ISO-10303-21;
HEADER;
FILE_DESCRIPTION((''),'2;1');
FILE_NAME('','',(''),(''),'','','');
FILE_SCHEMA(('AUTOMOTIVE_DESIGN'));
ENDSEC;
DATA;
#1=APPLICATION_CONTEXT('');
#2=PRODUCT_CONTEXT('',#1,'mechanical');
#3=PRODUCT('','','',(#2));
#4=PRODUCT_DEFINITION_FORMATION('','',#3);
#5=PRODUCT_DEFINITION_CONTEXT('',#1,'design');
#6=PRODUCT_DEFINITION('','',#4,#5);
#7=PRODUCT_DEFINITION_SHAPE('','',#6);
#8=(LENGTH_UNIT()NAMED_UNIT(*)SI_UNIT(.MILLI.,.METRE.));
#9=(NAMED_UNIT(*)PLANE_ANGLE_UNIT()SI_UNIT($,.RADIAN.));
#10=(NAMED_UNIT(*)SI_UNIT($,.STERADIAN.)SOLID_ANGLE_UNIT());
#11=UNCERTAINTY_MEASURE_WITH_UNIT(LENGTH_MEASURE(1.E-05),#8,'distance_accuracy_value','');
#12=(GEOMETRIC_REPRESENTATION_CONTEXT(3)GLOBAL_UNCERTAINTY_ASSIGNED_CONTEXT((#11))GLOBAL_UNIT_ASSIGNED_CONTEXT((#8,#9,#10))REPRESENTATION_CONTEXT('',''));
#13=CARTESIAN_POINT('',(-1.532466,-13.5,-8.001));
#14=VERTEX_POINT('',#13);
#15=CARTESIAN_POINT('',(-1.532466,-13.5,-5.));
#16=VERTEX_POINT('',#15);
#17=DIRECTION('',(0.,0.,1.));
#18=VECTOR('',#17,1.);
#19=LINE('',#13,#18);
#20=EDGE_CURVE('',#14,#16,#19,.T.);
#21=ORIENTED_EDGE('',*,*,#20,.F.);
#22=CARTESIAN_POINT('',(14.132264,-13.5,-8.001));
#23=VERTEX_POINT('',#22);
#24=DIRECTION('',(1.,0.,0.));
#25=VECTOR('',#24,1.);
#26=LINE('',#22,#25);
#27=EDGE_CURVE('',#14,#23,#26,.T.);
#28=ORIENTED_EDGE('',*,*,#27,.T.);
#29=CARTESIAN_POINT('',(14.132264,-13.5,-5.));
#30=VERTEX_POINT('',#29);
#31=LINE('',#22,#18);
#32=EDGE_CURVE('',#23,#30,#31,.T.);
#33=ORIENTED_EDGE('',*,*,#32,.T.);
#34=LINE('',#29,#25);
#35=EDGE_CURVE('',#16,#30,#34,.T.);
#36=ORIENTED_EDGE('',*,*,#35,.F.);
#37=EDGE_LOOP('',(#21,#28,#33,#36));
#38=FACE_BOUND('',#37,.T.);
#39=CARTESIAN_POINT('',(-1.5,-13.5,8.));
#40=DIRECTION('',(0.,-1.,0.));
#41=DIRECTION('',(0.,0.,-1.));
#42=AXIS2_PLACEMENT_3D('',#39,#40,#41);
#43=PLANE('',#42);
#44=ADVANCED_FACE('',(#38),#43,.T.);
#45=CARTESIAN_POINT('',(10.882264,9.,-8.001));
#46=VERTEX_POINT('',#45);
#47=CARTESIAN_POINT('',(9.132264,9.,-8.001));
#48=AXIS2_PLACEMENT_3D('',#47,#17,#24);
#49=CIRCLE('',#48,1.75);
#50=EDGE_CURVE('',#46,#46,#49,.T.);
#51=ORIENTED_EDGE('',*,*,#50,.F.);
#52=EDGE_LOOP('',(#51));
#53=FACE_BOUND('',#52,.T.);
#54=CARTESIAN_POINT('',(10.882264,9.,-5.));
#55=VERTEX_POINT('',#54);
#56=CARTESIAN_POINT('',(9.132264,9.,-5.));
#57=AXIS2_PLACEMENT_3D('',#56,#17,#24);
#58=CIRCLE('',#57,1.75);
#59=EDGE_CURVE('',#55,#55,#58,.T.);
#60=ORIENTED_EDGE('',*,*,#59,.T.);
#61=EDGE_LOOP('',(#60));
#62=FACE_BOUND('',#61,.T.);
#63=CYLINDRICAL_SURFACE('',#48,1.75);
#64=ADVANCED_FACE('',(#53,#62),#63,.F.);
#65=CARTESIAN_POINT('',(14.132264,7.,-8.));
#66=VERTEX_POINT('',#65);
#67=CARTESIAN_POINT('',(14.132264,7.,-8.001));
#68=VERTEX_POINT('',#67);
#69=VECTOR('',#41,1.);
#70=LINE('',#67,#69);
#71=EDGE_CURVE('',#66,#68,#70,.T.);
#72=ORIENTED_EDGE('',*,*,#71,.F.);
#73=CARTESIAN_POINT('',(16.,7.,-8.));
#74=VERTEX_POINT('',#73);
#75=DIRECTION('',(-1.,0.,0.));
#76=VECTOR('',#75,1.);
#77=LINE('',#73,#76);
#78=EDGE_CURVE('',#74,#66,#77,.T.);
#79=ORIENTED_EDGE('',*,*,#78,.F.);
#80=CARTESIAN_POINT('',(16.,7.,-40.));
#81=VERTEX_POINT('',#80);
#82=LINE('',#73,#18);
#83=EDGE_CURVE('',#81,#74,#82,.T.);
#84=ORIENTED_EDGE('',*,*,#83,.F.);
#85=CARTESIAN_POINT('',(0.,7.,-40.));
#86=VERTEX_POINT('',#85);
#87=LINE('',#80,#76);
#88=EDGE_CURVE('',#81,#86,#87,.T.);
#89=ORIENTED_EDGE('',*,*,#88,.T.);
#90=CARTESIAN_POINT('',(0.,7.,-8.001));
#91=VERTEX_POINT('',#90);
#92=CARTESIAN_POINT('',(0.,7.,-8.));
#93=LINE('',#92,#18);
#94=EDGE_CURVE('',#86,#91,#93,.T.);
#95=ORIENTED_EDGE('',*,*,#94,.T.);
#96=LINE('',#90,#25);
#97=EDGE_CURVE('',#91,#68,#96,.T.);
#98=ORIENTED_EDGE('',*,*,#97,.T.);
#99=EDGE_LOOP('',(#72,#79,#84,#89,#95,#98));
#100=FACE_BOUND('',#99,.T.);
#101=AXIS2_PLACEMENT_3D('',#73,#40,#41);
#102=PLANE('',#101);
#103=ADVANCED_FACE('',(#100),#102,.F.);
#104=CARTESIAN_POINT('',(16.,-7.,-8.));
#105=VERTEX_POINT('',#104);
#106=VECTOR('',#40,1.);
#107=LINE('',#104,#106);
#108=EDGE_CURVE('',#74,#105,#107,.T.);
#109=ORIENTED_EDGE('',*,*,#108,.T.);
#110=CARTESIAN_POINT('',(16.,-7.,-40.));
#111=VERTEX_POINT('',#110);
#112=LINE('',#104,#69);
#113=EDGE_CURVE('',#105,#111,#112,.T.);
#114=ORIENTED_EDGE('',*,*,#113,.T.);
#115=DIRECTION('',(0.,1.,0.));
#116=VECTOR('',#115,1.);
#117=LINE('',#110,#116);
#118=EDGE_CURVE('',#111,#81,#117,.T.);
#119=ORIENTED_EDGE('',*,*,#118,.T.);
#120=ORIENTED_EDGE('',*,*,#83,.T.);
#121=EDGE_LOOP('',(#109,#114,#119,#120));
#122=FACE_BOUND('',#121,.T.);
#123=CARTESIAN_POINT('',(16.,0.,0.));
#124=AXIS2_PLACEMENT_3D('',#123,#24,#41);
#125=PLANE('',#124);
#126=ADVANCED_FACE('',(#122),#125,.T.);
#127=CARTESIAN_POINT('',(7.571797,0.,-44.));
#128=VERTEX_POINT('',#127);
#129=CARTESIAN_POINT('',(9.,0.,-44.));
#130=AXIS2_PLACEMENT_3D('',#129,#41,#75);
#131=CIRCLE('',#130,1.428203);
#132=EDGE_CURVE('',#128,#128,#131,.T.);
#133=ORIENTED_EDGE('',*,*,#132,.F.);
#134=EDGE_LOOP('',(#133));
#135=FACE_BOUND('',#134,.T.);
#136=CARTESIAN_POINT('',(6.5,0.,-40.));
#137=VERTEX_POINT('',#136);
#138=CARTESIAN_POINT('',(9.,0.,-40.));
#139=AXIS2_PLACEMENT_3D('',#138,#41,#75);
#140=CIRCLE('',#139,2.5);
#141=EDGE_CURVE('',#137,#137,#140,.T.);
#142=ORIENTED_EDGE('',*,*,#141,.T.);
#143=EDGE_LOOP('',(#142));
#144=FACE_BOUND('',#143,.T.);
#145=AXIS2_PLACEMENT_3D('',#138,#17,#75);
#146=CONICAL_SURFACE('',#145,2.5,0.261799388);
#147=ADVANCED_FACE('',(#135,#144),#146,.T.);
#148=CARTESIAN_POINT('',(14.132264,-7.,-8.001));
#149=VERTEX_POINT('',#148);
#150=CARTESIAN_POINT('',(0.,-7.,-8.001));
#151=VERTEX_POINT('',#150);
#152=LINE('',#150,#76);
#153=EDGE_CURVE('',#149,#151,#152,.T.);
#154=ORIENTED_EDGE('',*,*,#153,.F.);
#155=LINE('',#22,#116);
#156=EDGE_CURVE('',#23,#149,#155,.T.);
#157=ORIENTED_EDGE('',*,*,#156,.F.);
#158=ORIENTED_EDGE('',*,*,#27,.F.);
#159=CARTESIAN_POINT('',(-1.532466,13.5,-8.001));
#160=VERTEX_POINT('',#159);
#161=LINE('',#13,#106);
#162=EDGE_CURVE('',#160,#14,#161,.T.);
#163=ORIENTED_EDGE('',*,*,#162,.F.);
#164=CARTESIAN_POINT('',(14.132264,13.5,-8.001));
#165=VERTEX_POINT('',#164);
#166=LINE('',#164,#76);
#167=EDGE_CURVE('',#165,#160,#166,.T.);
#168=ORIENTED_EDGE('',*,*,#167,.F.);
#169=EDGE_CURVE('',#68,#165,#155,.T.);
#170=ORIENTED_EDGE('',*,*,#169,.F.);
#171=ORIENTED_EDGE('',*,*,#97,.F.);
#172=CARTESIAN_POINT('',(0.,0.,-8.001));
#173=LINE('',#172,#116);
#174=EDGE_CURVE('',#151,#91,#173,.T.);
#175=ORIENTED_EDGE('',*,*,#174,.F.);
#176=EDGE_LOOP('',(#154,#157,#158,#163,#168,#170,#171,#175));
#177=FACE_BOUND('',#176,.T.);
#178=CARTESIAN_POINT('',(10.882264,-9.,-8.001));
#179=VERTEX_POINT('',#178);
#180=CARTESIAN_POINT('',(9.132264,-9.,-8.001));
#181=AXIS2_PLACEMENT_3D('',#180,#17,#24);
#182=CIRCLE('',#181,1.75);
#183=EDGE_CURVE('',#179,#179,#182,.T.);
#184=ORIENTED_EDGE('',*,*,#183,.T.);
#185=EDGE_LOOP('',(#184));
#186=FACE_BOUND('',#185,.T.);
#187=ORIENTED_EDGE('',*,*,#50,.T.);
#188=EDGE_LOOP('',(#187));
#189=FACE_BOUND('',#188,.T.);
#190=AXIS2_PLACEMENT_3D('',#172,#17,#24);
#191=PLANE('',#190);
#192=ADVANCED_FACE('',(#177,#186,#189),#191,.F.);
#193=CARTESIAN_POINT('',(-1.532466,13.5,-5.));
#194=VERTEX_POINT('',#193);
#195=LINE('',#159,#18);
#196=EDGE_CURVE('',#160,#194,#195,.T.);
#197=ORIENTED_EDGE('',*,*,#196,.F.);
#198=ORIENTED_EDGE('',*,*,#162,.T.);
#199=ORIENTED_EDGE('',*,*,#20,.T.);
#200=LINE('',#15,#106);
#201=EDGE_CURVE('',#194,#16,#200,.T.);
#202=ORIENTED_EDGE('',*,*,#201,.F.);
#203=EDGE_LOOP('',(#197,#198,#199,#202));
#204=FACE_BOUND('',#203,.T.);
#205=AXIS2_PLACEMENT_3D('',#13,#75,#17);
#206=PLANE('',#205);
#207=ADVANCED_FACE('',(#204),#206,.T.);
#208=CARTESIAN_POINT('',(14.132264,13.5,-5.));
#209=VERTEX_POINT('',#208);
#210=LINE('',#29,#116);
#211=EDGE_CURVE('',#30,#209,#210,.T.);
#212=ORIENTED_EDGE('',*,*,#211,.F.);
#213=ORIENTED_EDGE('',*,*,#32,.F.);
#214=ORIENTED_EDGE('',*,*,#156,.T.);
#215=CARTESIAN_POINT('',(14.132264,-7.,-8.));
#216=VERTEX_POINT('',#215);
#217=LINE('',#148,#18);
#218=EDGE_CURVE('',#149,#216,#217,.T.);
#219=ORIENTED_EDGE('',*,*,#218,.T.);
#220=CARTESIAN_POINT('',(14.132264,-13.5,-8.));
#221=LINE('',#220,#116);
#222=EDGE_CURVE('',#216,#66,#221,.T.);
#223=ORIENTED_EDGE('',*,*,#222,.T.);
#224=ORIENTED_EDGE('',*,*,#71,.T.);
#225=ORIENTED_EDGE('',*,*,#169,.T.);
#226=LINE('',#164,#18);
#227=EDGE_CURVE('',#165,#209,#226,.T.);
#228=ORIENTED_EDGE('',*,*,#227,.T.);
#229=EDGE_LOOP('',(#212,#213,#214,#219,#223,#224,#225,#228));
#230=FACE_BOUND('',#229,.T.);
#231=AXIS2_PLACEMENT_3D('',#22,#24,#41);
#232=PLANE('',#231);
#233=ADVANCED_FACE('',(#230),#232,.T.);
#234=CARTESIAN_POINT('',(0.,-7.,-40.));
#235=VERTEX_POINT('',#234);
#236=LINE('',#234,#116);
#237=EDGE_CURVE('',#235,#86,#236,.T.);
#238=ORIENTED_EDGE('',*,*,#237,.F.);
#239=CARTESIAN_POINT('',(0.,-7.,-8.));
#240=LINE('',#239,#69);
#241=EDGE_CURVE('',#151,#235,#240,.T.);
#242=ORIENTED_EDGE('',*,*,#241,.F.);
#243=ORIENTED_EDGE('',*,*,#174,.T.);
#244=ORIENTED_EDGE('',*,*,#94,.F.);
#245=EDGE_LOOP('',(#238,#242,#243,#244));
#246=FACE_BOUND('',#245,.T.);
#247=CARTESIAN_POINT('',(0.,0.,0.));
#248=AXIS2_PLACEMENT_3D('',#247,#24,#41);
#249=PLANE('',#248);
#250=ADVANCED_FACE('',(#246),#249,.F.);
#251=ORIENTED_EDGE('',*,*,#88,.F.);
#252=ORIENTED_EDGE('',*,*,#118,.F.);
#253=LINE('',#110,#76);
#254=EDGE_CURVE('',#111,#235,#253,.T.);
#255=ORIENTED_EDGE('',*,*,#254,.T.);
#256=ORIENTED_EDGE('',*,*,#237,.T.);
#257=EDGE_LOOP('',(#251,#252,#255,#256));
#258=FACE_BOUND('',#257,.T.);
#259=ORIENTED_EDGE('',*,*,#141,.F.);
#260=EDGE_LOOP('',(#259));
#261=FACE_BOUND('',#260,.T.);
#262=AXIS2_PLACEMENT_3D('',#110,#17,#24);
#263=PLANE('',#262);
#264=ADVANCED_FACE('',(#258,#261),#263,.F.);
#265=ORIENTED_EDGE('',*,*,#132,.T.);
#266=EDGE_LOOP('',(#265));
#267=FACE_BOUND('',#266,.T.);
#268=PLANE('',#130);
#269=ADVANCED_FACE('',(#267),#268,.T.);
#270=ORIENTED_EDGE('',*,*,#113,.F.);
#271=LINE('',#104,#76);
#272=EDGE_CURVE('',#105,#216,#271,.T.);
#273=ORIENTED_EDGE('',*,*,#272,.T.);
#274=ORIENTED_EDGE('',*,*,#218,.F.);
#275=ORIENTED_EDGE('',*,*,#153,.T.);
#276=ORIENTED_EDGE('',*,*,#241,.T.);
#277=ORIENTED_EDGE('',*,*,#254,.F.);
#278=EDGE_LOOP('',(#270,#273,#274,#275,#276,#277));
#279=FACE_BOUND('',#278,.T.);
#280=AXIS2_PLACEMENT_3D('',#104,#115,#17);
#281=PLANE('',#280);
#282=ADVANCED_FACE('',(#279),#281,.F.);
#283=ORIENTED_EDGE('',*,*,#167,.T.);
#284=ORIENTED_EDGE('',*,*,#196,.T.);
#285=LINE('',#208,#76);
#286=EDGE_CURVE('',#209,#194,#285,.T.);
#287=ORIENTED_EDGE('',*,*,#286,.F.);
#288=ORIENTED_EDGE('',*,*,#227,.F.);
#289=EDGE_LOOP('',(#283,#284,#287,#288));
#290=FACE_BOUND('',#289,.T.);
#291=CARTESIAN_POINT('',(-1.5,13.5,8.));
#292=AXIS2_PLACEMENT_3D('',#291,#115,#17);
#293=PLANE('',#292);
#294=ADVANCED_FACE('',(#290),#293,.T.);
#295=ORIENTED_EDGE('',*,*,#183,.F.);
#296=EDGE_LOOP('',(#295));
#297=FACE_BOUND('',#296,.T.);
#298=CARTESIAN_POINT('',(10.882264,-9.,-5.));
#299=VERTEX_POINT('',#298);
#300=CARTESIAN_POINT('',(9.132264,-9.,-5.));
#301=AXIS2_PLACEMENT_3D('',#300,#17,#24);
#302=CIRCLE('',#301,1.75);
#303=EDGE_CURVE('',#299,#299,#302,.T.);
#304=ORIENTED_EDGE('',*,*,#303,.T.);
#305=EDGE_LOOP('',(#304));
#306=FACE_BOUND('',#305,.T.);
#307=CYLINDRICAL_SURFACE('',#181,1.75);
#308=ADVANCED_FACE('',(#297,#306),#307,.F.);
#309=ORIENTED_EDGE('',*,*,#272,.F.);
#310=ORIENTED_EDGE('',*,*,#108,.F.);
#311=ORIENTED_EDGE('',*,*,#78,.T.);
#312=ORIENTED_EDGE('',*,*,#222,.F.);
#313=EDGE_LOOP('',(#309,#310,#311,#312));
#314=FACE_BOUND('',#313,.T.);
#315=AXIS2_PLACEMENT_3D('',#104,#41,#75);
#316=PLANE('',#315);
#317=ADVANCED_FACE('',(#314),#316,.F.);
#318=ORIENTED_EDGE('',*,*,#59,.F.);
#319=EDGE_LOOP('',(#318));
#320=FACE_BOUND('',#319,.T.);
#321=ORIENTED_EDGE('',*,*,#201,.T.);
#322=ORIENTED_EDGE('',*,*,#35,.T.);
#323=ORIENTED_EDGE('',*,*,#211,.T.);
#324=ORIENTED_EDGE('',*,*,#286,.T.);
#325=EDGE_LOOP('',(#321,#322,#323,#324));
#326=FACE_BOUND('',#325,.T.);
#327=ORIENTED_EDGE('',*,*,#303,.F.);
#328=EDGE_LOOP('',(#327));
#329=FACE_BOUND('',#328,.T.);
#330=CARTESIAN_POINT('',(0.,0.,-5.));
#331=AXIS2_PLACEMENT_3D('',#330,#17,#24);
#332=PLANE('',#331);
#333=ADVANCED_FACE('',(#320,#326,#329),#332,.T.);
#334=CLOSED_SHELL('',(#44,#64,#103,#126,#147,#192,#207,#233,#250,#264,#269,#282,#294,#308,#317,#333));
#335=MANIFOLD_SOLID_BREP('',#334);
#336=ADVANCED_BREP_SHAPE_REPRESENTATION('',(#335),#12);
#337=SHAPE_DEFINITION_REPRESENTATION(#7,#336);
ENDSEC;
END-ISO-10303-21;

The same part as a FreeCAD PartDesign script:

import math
import FreeCAD as App
import Part
import Sketcher
from FreeCAD import Vector
Q = App.Units.Quantity

doc = App.newDocument("Part")
body = doc.addObject("PartDesign::Body", "Body")

sketch1 = doc.addObject("Sketcher::SketchObject", "Sketch")
body.addObject(sketch1)
sketch1.AttachmentSupport = (doc.YZ_Plane, [""])
sketch1.MapMode = "FlatFace"
sketch1.addGeometry(Part.LineSegment(Vector(-13.5, 8, 0), Vector(-13.5, -8, 0)), False)
sketch1.addGeometry(Part.LineSegment(Vector(-13.5, -8, 0), Vector(13.5, -8, 0)), False)
sketch1.addGeometry(Part.LineSegment(Vector(13.5, -8, 0), Vector(13.5, 8, 0)), False)
sketch1.addGeometry(Part.LineSegment(Vector(13.5, 8, 0), Vector(5, 8, 0)), False)
sketch1.addGeometry(Part.LineSegment(Vector(5, 8, 0), Vector(5, 58, 0)), False)
sketch1.addGeometry(Part.LineSegment(Vector(5, 58, 0), Vector(-5, 58, 0)), False)
sketch1.addGeometry(Part.LineSegment(Vector(-5, 58, 0), Vector(-5, 8, 0)), False)
sketch1.addGeometry(Part.LineSegment(Vector(-5, 8, 0), Vector(-13.5, 8, 0)), False)
sketch1.addConstraint(Sketcher.Constraint("Coincident", 0, 2, 1, 1))
sketch1.addConstraint(Sketcher.Constraint("Coincident", 1, 2, 2, 1))
sketch1.addConstraint(Sketcher.Constraint("Coincident", 2, 2, 3, 1))
sketch1.addConstraint(Sketcher.Constraint("Coincident", 3, 2, 4, 1))
sketch1.addConstraint(Sketcher.Constraint("Coincident", 4, 2, 5, 1))
sketch1.addConstraint(Sketcher.Constraint("Coincident", 5, 2, 6, 1))
sketch1.addConstraint(Sketcher.Constraint("Coincident", 6, 2, 7, 1))
sketch1.addConstraint(Sketcher.Constraint("Coincident", 7, 2, 0, 1))
sketch1.addConstraint(Sketcher.Constraint("Vertical", 0))
sketch1.addConstraint(Sketcher.Constraint("Horizontal", 1))
sketch1.addConstraint(Sketcher.Constraint("Vertical", 2))
sketch1.addConstraint(Sketcher.Constraint("Horizontal", 3))
sketch1.addConstraint(Sketcher.Constraint("Vertical", 4))
sketch1.addConstraint(Sketcher.Constraint("Horizontal", 5))
sketch1.addConstraint(Sketcher.Constraint("Vertical", 6))
sketch1.addConstraint(Sketcher.Constraint("Horizontal", 7))
sketch1.addConstraint(Sketcher.Constraint("Symmetric", 0, 2, 2, 2, -1, 1))
sketch1.addConstraint(Sketcher.Constraint("Symmetric", 3, 2, 6, 2, -2))
sketch1.addConstraint(Sketcher.Constraint("DistanceX", 1, 1, 1, 2, Q("27 mm")))
sketch1.addConstraint(Sketcher.Constraint("DistanceX", 5, 2, 5, 1, Q("10 mm")))
sketch1.addConstraint(Sketcher.Constraint("DistanceY", 0, 2, 0, 1, Q("16 mm")))
sketch1.addConstraint(Sketcher.Constraint("DistanceY", 4, 1, 4, 2, Q("50 mm")))
pad1 = doc.addObject("PartDesign::Pad", "Pad")
body.addObject(pad1)
pad1.Profile = sketch1
pad1.Length = 1.5
pad1.Reversed = True
body2 = doc.addObject("PartDesign::Body", "Body001")

sketch2 = doc.addObject("Sketcher::SketchObject", "Sketch001")
body2.addObject(sketch2)
sketch2.AttachmentSupport = (doc.getObject("YZ_Plane001"), [""])
sketch2.MapMode = "FlatFace"
sketch2.addGeometry(Part.LineSegment(Vector(-7, -8, 0), Vector(-7, -40, 0)), False)
sketch2.addGeometry(Part.LineSegment(Vector(-7, -40, 0), Vector(7, -40, 0)), False)
sketch2.addGeometry(Part.LineSegment(Vector(7, -40, 0), Vector(7, -8, 0)), False)
sketch2.addGeometry(Part.LineSegment(Vector(7, -8, 0), Vector(-7, -8, 0)), False)
sketch2.addConstraint(Sketcher.Constraint("Coincident", 0, 2, 1, 1))
sketch2.addConstraint(Sketcher.Constraint("Coincident", 1, 2, 2, 1))
sketch2.addConstraint(Sketcher.Constraint("Coincident", 2, 2, 3, 1))
sketch2.addConstraint(Sketcher.Constraint("Coincident", 3, 2, 0, 1))
sketch2.addConstraint(Sketcher.Constraint("Vertical", 0))
sketch2.addConstraint(Sketcher.Constraint("Horizontal", 1))
sketch2.addConstraint(Sketcher.Constraint("Vertical", 2))
sketch2.addConstraint(Sketcher.Constraint("Horizontal", 3))
sketch2.addConstraint(Sketcher.Constraint("DistanceX", 1, 1, 1, 2, Q("14 mm")))
sketch2.addConstraint(Sketcher.Constraint("DistanceY", 0, 2, 0, 1, Q("32 mm")))
sketch2.addConstraint(Sketcher.Constraint("DistanceX", 0, 2, -1, 1, Q("7 mm")))
sketch2.addConstraint(Sketcher.Constraint("DistanceY", 0, 2, -1, 1, Q("40 mm")))
pad2 = doc.addObject("PartDesign::Pad", "Pad001")
body2.addObject(pad2)
pad2.Profile = sketch2
pad2.Length = 16
body.AllowCompound = True
doc.recompute()

boolean = doc.addObject("PartDesign::Boolean", "Boolean")
body.addObject(boolean)
boolean.Type = "Fuse"
boolean.addObjects([body2])

sketch3 = doc.addObject("Sketcher::SketchObject", "Sketch002")
body.addObject(sketch3)
sketch3.AttachmentSupport = (doc.XY_Plane, [""])
sketch3.MapMode = "FlatFace"
sketch3.AttachmentOffset = App.Placement(Vector(0, 0, -8), App.Rotation())
sketch3.addGeometry(Part.LineSegment(Vector(-1.532466, 13.5, 0), Vector(-1.532466, -13.5, 0)), False)
sketch3.addGeometry(Part.LineSegment(Vector(-1.532466, -13.5, 0), Vector(14.132264, -13.5, 0)), False)
sketch3.addGeometry(Part.LineSegment(Vector(14.132264, -13.5, 0), Vector(14.132264, 13.5, 0)), False)
sketch3.addGeometry(Part.LineSegment(Vector(14.132264, 13.5, 0), Vector(-1.532466, 13.5, 0)), False)
sketch3.addGeometry(Part.Circle(Vector(9.132264, -9, 0), Vector(0, 0, 1), 1.75), False)
sketch3.addGeometry(Part.Circle(Vector(9.132264, 9, 0), Vector(0, 0, 1), 1.75), False)
sketch3.addConstraint(Sketcher.Constraint("Coincident", 0, 2, 1, 1))
sketch3.addConstraint(Sketcher.Constraint("Coincident", 1, 2, 2, 1))
sketch3.addConstraint(Sketcher.Constraint("Coincident", 2, 2, 3, 1))
sketch3.addConstraint(Sketcher.Constraint("Coincident", 3, 2, 0, 1))
sketch3.addConstraint(Sketcher.Constraint("Vertical", 0))
sketch3.addConstraint(Sketcher.Constraint("Horizontal", 1))
sketch3.addConstraint(Sketcher.Constraint("Vertical", 2))
sketch3.addConstraint(Sketcher.Constraint("Horizontal", 3))
sketch3.addConstraint(Sketcher.Constraint("Equal", 4, 5))
sketch3.addConstraint(Sketcher.Constraint("Symmetric", 4, 3, 5, 3, -1))
sketch3.addConstraint(Sketcher.Constraint("Diameter", 4, Q("3.5 mm")))
sketch3.addConstraint(Sketcher.Constraint("DistanceY", 0, 2, 0, 1, Q("27 mm")))
sketch3.addConstraint(Sketcher.Constraint("DistanceY", 4, 3, -1, 1, Q("9 mm")))
sketch3.addConstraint(Sketcher.Constraint("DistanceX", 4, 3, 1, 2, Q("5 mm")))
sketch3.addConstraint(Sketcher.Constraint("DistanceY", 0, 2, -1, 1, Q("13.5 mm")))
sketch3.addConstraint(Sketcher.Constraint("DistanceX", 1, 1, 1, 2, Q("15.66473 mm")))
sketch3.addConstraint(Sketcher.Constraint("DistanceX", -1, 1, 4, 3, Q("9.132264 mm")))
pad3 = doc.addObject("PartDesign::Pad", "Pad002")
body.addObject(pad3)
pad3.Profile = sketch3
pad3.Type = "TwoLengths"
pad3.Length = 3
pad3.Length2 = 0.001

sketch4 = doc.addObject("Sketcher::SketchObject", "Sketch003")
body.addObject(sketch4)
sketch4.AttachmentSupport = (doc.XY_Plane, [""])
sketch4.MapMode = "FlatFace"
sketch4.AttachmentOffset = App.Placement(Vector(0, 0, -40), App.Rotation())
sketch4.addGeometry(Part.Circle(Vector(9, 0, 0), Vector(0, 0, 1), 2.5), False)
sketch4.addConstraint(Sketcher.Constraint("PointOnObject", 0, 3, -1))
sketch4.addConstraint(Sketcher.Constraint("Diameter", 0, Q("5 mm")))
sketch4.addConstraint(Sketcher.Constraint("DistanceX", -1, 1, 0, 3, Q("9 mm")))
pad4 = doc.addObject("PartDesign::Pad", "Pad003")
body.addObject(pad4)
pad4.Profile = sketch4
pad4.Length = 4
pad4.Reversed = True
pad4.TaperAngle = -15

sketch5 = doc.addObject("Sketcher::SketchObject", "Sketch004")
body.addObject(sketch5)
sketch5.AttachmentSupport = (doc.YZ_Plane, [""])
sketch5.MapMode = "FlatFace"
sketch5.addGeometry(Part.LineSegment(Vector(0.555279, 18, 0), Vector(0.555279, 48, 0)), False)
sketch5.addGeometry(Part.ArcOfCircle(Part.Circle(Vector(-1.194721, 48, 0), Vector(0, 0, 1), 1.75), math.radians(0), math.radians(180)), False)
sketch5.addGeometry(Part.LineSegment(Vector(-2.944721, 48, 0), Vector(-2.944721, 18, 0)), False)
sketch5.addGeometry(Part.ArcOfCircle(Part.Circle(Vector(-1.194721, 18, 0), Vector(0, 0, 1), 1.75), math.radians(180), math.radians(360)), False)
sketch5.addConstraint(Sketcher.Constraint("Tangent", 0, 2, 1, 1))
sketch5.addConstraint(Sketcher.Constraint("Tangent", 1, 2, 2, 1))
sketch5.addConstraint(Sketcher.Constraint("Tangent", 2, 2, 3, 1))
sketch5.addConstraint(Sketcher.Constraint("Tangent", 3, 2, 0, 1))
sketch5.addConstraint(Sketcher.Constraint("Vertical", 0))
sketch5.addConstraint(Sketcher.Constraint("Vertical", 2))
sketch5.addConstraint(Sketcher.Constraint("DistanceY", 0, 1, 0, 2, Q("30 mm")))
sketch5.addConstraint(Sketcher.Constraint("Radius", 1, Q("1.75 mm")))
sketch5.addConstraint(Sketcher.Constraint("DistanceY", -1, 1, 1, 3, Q("48 mm")))
sketch5.addConstraint(Sketcher.Constraint("DistanceX", 1, 3, -1, 1, Q("1.194721 mm")))
pocket1 = doc.addObject("PartDesign::Pocket", "Pocket")
body.addObject(pocket1)
pocket1.Profile = sketch5
pocket1.Length = 10

sketch6 = doc.addObject("Sketcher::SketchObject", "Sketch005")
body.addObject(sketch6)
sketch6.AttachmentSupport = (doc.YZ_Plane, [""])
sketch6.MapMode = "FlatFace"
sketch6.AttachmentOffset = App.Placement(Vector(0, 0, 14.132264), App.Rotation())
sketch6.addGeometry(Part.LineSegment(Vector(-35.454088, 65.27788, 0), Vector(-35.454088, -5, 0)), False)
sketch6.addGeometry(Part.LineSegment(Vector(-35.454088, -5, 0), Vector(35.611661, -5, 0)), False)
sketch6.addGeometry(Part.LineSegment(Vector(35.611661, -5, 0), Vector(35.611661, 65.27788, 0)), False)
sketch6.addGeometry(Part.LineSegment(Vector(35.611661, 65.27788, 0), Vector(-35.454088, 65.27788, 0)), False)
sketch6.addConstraint(Sketcher.Constraint("Coincident", 0, 2, 1, 1))
sketch6.addConstraint(Sketcher.Constraint("Coincident", 1, 2, 2, 1))
sketch6.addConstraint(Sketcher.Constraint("Coincident", 2, 2, 3, 1))
sketch6.addConstraint(Sketcher.Constraint("Coincident", 3, 2, 0, 1))
sketch6.addConstraint(Sketcher.Constraint("Vertical", 0))
sketch6.addConstraint(Sketcher.Constraint("Horizontal", 1))
sketch6.addConstraint(Sketcher.Constraint("Vertical", 2))
sketch6.addConstraint(Sketcher.Constraint("Horizontal", 3))
sketch6.addConstraint(Sketcher.Constraint("DistanceY", 0, 2, -1, 1, Q("5 mm")))
sketch6.addConstraint(Sketcher.Constraint("DistanceX", 1, 1, 1, 2, Q("71.065749 mm")))
sketch6.addConstraint(Sketcher.Constraint("DistanceY", 0, 2, 0, 1, Q("70.27788 mm")))
sketch6.addConstraint(Sketcher.Constraint("DistanceX", -1, 1, 1, 2, Q("35.611661 mm")))
pocket2 = doc.addObject("PartDesign::Pocket", "Pocket001")
body.addObject(pocket2)
pocket2.Profile = sketch6
pocket2.Length = 30

doc.recompute()
